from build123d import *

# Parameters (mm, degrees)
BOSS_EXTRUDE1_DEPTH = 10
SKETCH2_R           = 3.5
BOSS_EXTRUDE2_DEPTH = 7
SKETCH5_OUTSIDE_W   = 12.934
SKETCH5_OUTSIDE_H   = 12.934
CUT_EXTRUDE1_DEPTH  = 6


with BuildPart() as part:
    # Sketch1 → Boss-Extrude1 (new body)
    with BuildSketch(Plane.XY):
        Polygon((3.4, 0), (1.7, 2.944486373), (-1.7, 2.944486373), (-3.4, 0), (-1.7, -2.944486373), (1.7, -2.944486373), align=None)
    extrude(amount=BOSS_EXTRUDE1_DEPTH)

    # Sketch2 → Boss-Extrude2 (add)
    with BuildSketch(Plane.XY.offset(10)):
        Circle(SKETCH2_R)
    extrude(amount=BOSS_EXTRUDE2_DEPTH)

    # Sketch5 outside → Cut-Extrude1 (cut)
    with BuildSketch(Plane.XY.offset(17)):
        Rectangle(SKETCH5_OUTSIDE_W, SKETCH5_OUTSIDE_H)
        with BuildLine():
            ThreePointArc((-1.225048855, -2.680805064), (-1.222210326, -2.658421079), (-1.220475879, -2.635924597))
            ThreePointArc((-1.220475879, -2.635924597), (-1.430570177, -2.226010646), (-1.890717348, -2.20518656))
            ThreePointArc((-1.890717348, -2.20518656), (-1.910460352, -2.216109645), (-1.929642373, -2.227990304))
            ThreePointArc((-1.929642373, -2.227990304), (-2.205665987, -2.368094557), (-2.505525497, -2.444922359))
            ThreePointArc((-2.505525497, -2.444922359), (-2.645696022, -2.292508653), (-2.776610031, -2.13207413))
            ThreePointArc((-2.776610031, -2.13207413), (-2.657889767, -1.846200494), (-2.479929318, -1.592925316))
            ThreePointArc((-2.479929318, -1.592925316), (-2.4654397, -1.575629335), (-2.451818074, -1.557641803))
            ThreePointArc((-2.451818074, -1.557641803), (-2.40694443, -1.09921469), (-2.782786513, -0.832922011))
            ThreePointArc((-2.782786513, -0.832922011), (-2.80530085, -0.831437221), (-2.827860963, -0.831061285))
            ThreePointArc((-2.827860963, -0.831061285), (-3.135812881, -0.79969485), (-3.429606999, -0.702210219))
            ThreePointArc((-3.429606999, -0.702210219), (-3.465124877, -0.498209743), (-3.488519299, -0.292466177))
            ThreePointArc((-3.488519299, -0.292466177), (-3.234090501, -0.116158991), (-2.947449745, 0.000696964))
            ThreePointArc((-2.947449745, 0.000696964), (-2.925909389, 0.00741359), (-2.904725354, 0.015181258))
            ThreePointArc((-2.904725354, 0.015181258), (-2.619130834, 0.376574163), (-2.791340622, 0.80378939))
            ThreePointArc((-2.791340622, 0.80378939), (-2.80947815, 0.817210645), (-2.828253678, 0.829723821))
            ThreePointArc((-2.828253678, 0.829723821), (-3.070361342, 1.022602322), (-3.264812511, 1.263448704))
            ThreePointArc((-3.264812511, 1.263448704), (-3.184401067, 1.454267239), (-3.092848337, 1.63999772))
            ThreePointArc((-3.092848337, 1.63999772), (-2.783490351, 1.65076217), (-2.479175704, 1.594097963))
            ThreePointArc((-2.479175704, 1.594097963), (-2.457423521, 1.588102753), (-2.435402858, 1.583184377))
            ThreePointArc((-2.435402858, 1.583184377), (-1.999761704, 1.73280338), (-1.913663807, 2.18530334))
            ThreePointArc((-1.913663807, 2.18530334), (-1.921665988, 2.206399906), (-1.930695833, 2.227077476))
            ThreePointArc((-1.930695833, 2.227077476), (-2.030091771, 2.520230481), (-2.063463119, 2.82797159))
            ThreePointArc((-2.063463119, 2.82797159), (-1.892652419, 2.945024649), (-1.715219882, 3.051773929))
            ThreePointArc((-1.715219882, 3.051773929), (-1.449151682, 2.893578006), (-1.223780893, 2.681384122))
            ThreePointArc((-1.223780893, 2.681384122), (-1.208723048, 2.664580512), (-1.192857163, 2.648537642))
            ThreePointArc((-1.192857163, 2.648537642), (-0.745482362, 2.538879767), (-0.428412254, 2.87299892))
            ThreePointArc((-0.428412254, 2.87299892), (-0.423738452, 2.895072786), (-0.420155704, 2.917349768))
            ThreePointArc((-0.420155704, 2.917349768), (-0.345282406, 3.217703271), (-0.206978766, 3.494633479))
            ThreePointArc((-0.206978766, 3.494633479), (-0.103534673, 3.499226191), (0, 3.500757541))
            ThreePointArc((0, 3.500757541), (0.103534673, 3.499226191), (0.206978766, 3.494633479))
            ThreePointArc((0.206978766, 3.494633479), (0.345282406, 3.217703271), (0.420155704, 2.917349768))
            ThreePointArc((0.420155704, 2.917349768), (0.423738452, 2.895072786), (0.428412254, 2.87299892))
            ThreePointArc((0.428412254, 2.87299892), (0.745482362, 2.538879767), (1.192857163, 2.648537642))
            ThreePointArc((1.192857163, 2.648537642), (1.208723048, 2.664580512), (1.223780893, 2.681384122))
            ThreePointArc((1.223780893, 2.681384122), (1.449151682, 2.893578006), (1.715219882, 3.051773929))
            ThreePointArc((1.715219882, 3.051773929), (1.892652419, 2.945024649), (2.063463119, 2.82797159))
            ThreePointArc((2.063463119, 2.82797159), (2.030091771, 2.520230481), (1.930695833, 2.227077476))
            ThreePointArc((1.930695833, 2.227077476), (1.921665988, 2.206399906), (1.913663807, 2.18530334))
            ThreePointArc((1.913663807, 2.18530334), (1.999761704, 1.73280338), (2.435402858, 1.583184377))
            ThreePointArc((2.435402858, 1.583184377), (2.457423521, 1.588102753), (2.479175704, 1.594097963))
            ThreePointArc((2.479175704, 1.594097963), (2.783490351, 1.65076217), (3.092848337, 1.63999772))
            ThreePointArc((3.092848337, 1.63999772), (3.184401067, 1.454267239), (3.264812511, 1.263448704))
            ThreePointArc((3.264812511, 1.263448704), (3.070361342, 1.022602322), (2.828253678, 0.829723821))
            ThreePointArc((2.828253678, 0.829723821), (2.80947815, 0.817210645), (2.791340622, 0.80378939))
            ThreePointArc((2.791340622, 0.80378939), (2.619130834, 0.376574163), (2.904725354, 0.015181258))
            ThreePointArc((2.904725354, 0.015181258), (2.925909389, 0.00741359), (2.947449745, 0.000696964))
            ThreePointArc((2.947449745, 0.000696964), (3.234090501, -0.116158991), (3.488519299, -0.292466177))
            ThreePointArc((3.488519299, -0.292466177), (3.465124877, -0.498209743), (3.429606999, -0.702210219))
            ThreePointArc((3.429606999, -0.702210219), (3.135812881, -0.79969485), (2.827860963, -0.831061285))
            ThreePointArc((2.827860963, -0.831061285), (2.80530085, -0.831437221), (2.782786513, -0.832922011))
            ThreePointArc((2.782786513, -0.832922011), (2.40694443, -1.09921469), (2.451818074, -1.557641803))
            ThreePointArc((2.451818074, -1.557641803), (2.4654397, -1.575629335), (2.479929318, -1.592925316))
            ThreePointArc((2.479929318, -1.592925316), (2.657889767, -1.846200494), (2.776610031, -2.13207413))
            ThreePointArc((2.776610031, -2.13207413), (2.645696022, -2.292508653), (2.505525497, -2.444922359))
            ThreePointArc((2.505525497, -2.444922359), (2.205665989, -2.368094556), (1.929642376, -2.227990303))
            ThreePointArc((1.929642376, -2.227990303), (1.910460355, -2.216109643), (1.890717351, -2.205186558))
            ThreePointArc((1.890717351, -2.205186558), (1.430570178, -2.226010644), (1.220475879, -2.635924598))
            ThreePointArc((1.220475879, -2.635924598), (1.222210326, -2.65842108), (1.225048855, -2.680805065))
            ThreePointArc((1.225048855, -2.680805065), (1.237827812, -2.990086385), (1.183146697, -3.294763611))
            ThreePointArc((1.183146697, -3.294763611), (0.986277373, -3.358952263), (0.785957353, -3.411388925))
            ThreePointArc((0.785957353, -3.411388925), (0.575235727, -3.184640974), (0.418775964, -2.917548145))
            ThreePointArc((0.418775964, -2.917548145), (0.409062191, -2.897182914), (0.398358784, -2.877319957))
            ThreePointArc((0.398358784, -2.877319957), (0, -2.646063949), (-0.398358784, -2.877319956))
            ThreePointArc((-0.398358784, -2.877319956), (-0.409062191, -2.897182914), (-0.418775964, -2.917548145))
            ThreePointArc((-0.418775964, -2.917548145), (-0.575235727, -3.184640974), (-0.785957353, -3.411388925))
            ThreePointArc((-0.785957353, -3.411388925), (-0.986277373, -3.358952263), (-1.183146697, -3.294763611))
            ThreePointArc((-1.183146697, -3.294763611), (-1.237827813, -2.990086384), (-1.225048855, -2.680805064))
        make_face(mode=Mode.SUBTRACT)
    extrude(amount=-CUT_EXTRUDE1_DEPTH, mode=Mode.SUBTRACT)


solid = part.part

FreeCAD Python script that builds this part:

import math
import FreeCAD as App
import Part
import Sketcher
Q = App.Units.Quantity

doc = App.newDocument("Part")
body = doc.addObject("PartDesign::Body", "Body")

# Sketch on XY plane
sketch1 = body.newObject("Sketcher::SketchObject", "Sketch")
sketch1.AttachmentSupport = (doc.getObject("XY_Plane"), [""])
sketch1.MapMode = "FlatFace"
sketch1.addGeometry(Part.LineSegment(App.Vector(3.4, 0, 0), App.Vector(1.7, 2.9, 0)), False)
sketch1.addGeometry(Part.LineSegment(App.Vector(1.7, 2.9, 0), App.Vector(-1.7, 2.9, 0)), False)
sketch1.addGeometry(Part.LineSegment(App.Vector(-1.7, 2.9, 0), App.Vector(-3.4, 0, 0)), False)
sketch1.addGeometry(Part.LineSegment(App.Vector(-3.4, 0, 0), App.Vector(-1.7, -2.9, 0)), False)
sketch1.addGeometry(Part.LineSegment(App.Vector(-1.7, -2.9, 0), App.Vector(1.7, -2.9, 0)), False)
sketch1.addGeometry(Part.LineSegment(App.Vector(1.7, -2.9, 0), App.Vector(3.4, 0, 0)), False)
sketch1.addConstraint(Sketcher.Constraint("Coincident", 0, 2, 1, 1))
sketch1.addConstraint(Sketcher.Constraint("Coincident", 1, 2, 2, 1))
sketch1.addConstraint(Sketcher.Constraint("Coincident", 2, 2, 3, 1))
sketch1.addConstraint(Sketcher.Constraint("Coincident", 3, 2, 4, 1))
sketch1.addConstraint(Sketcher.Constraint("Coincident", 4, 2, 5, 1))
sketch1.addConstraint(Sketcher.Constraint("Coincident", 5, 2, 0, 1))
sketch1.addConstraint(Sketcher.Constraint("Horizontal", 1))
sketch1.addConstraint(Sketcher.Constraint("Horizontal", 4))
sketch1.addConstraint(Sketcher.Constraint("Symmetric", 0, 2, 3, 2, -1, 1))
sketch1.addConstraint(Sketcher.Constraint("Symmetric", 2, 2, 5, 2, -1, 1))
sketch1.addConstraint(Sketcher.Constraint("PointOnObject", 2, 2, -1))
sketch1.addConstraint(Sketcher.Constraint("Parallel", 2, 5))
sketch1.addConstraint(Sketcher.Constraint("Vertical", 1, 2, 3, 2))
sketch1.addConstraint(Sketcher.Constraint("Angle", 0, Q("120 deg")))
sketch1.addConstraint(Sketcher.Constraint("DistanceX", 1, 2, 1, 1, Q("3.4 mm")))
sketch1.addConstraint(Sketcher.Constraint("Distance", 0, Q("3.4 mm")))
pad1 = body.newObject("PartDesign::Pad", "Pad")
pad1.Profile = sketch1
pad1.Length = 10

# Sketch on XY plane
sketch2 = body.newObject("Sketcher::SketchObject", "Sketch001")
sketch2.AttachmentSupport = (doc.getObject("XY_Plane"), [""])
sketch2.MapMode = "FlatFace"
sketch2.AttachmentOffset = App.Placement(App.Vector(0, 0, 10), App.Rotation())
sketch2.addGeometry(Part.Circle(App.Vector(0, 0, 0), App.Vector(0, 0, 1), 3.5), False)
sketch2.addConstraint(Sketcher.Constraint("Coincident", 0, 3, -1, 1))
sketch2.addConstraint(Sketcher.Constraint("Diameter", 0, Q("7 mm")))
pad2 = body.newObject("PartDesign::Pad", "Pad001")
pad2.Profile = sketch2
pad2.Length = 7

# Sketch on XY plane
sketch3 = body.newObject("Sketcher::SketchObject", "Sketch002")
sketch3.AttachmentSupport = (doc.getObject("XY_Plane"), [""])
sketch3.MapMode = "FlatFace"
sketch3.AttachmentOffset = App.Placement(App.Vector(0, 0, 17), App.Rotation())
sketch3.addGeometry(Part.LineSegment(App.Vector(-6.467, 6.467, 0), App.Vector(-6.467, -6.467, 0)), False)
sketch3.addGeometry(Part.LineSegment(App.Vector(-6.467, -6.467, 0), App.Vector(6.467, -6.467, 0)), False)
sketch3.addGeometry(Part.LineSegment(App.Vector(6.467, -6.467, 0), App.Vector(6.467, 6.467, 0)), False)
sketch3.addGeometry(Part.LineSegment(App.Vector(6.467, 6.467, 0), App.Vector(-6.467, 6.467, 0)), False)
sketch3.addGeometry(Part.ArcOfCircle(Part.Circle(App.Vector(0.176, -2.894, 0), App.Vector(0, 0, 1), 1.417), math.radians(171), math.radians(196)), False)
sketch3.addGeometry(Part.ArcOfCircle(Part.Circle(App.Vector(-1.679, -2.612, 0), App.Vector(0, 0, 1), 0.459), math.radians(-8.64), math.radians(-3)), False)
sketch3.addGeometry(Part.ArcOfCircle(Part.Circle(App.Vector(-1.679, -2.612, 0), App.Vector(0, 0, 1), 0.459), math.radians(-3), math.radians(118)), False)
sketch3.addGeometry(Part.ArcOfCircle(Part.Circle(App.Vector(-1.679, -2.612, 0), App.Vector(0, 0, 1), 0.459), math.radians(117.54), math.radians(123.18)), False)
sketch3.addGeometry(Part.ArcOfCircle(Part.Circle(App.Vector(-2.705, -1.042, 0), App.Vector(0, 0, 1), 1.417), math.radians(-82), math.radians(-57)), False)
sketch3.addGeometry(Part.ArcOfCircle(Part.Circle(App.Vector(0, 0, 0), App.Vector(0, 0, 1), 3.501), math.radians(-142.48), math.radians(-135.7)), False)
sketch3.addGeometry(Part.ArcOfCircle(Part.Circle(App.Vector(-1.416, -2.529, 0), App.Vector(0, 0, 1), 1.417), math.radians(139), math.radians(164)), False)
sketch3.addGeometry(Part.ArcOfCircle(Part.Circle(App.Vector(-2.824, -1.29, 0), App.Vector(0, 0, 1), 0.459), math.radians(-41.36), math.radians(-35.73)), False)
sketch3.addGeometry(Part.ArcOfCircle(Part.Circle(App.Vector(-2.824, -1.29, 0), App.Vector(0, 0, 1), 0.459), math.radians(-36), math.radians(85)), False)
sketch3.addGeometry(Part.ArcOfCircle(Part.Circle(App.Vector(-2.824, -1.29, 0), App.Vector(0, 0, 1), 0.459), math.radians(84.82), math.radians(90.45)), False)
sketch3.addGeometry(Part.ArcOfCircle(Part.Circle(App.Vector(-2.839, 0.586, 0), App.Vector(0, 0, 1), 1.417), math.radians(-115), math.radians(-90)), False)
sketch3.addGeometry(Part.ArcOfCircle(Part.Circle(App.Vector(0, 0, 0), App.Vector(0, 0, 1), 3.501), math.radians(-175.21), math.radians(-168.43)), False)
sketch3.addGeometry(Part.ArcOfCircle(Part.Circle(App.Vector(-2.559, -1.362, 0), App.Vector(0, 0, 1), 1.417), math.radians(106), math.radians(131)), False)
sketch3.addGeometry(Part.ArcOfCircle(Part.Circle(App.Vector(-3.073, 0.442, 0), App.Vector(0, 0, 1), 0.459), math.radians(-74.09), math.radians(-68.45)), False)
sketch3.addGeometry(Part.ArcOfCircle(Part.Circle(App.Vector(-3.073, 0.442, 0), App.Vector(0, 0, 1), 0.459), math.radians(-68), math.radians(52)), False)
sketch3.addGeometry(Part.ArcOfCircle(Part.Circle(App.Vector(-3.073, 0.442, 0), App.Vector(0, 0, 1), 0.459), math.radians(52.09), math.radians(57.73)), False)
sketch3.addGeometry(Part.ArcOfCircle(Part.Circle(App.Vector(-2.072, 2.028, 0), App.Vector(0, 0, 1), 1.417), math.radians(-147), math.radians(-122)), False)
sketch3.addGeometry(Part.ArcOfCircle(Part.Circle(App.Vector(0, 0, 0), App.Vector(0, 0, 1), 3.501), math.radians(152.07), math.radians(158.84)), False)
sketch3.addGeometry(Part.ArcOfCircle(Part.Circle(App.Vector(-2.889, 0.238, 0), App.Vector(0, 0, 1), 1.417), math.radians(73), math.radians(98)), False)
sketch3.addGeometry(Part.ArcOfCircle(Part.Circle(App.Vector(-2.346, 2.033, 0), App.Vector(0, 0, 1), 0.459), math.radians(-106.82), math.radians(-101.18)), False)
sketch3.addGeometry(Part.ArcOfCircle(Part.Circle(App.Vector(-2.346, 2.033, 0), App.Vector(0, 0, 1), 0.459), math.radians(-101), math.radians(19)), False)
sketch3.addGeometry(Part.ArcOfCircle(Part.Circle(App.Vector(-2.346, 2.033, 0), App.Vector(0, 0, 1), 0.459), math.radians(19.36), math.radians(25)), False)
sketch3.addGeometry(Part.ArcOfCircle(Part.Circle(App.Vector(-0.646, 2.826, 0), App.Vector(0, 0, 1), 1.417), math.radians(180), math.radians(205)), False)
sketch3.addGeometry(Part.ArcOfCircle(Part.Circle(App.Vector(0, 0, 0), App.Vector(0, 0, 1), 3.501), math.radians(119.34), math.radians(126.12)), False)
sketch3.addGeometry(Part.ArcOfCircle(Part.Circle(App.Vector(-2.302, 1.762, 0), App.Vector(0, 0, 1), 1.417), math.radians(40), math.radians(66)), False)
sketch3.addGeometry(Part.ArcOfCircle(Part.Circle(App.Vector(-0.875, 2.979, 0), App.Vector(0, 0, 1), 0.459), math.radians(-139.55), math.radians(-133.91)), False)
sketch3.addGeometry(Part.ArcOfCircle(Part.Circle(App.Vector(-0.875, 2.979, 0), App.Vector(0, 0, 1), 0.459), math.radians(-134), math.radians(-13)), False)
sketch3.addGeometry(Part.ArcOfCircle(Part.Circle(App.Vector(-0.875, 2.979, 0), App.Vector(0, 0, 1), 0.459), math.radians(-13.36), math.radians(-7.73)), False)
sketch3.addGeometry(Part.ArcOfCircle(Part.Circle(App.Vector(0.984, 2.727, 0), App.Vector(0, 0, 1), 1.417), math.radians(147), math.radians(172)), False)
sketch3.addGeometry(Part.ArcOfCircle(Part.Circle(App.Vector(0, 0, 0), App.Vector(0, 0, 1), 3.501), math.radians(90), math.radians(93.39)), False)
sketch3.addGeometry(Part.ArcOfCircle(Part.Circle(App.Vector(0, 0, 0), App.Vector(0, 0, 1), 3.501), math.radians(86.61), math.radians(90)), False)
sketch3.addGeometry(Part.ArcOfCircle(Part.Circle(App.Vector(-0.984, 2.727, 0), App.Vector(0, 0, 1), 1.417), math.radians(8), math.radians(33)), False)
sketch3.addGeometry(Part.ArcOfCircle(Part.Circle(App.Vector(0.875, 2.979, 0), App.Vector(0, 0, 1), 0.459), math.radians(-172.27), math.radians(-166.64)), False)
sketch3.addGeometry(Part.ArcOfCircle(Part.Circle(App.Vector(0.875, 2.979, 0), App.Vector(0, 0, 1), 0.459), math.radians(-167), math.radians(-46)), False)
sketch3.addGeometry(Part.ArcOfCircle(Part.Circle(App.Vector(0.875, 2.979, 0), App.Vector(0, 0, 1), 0.459), math.radians(-46.09), math.radians(-40.45)), False)
sketch3.addGeometry(Part.ArcOfCircle(Part.Circle(App.Vector(2.302, 1.762, 0), App.Vector(0, 0, 1), 1.417), math.radians(114), math.radians(140)), False)
sketch3.addGeometry(Part.ArcOfCircle(Part.Circle(App.Vector(0, 0, 0), App.Vector(0, 0, 1), 3.501), math.radians(53.88), math.radians(60.66)), False)
sketch3.addGeometry(Part.ArcOfCircle(Part.Circle(App.Vector(0.646, 2.826, 0), App.Vector(0, 0, 1), 1.417), math.radians(-25), math.radians(0)), False)
sketch3.addGeometry(Part.ArcOfCircle(Part.Circle(App.Vector(2.346, 2.033, 0), App.Vector(0, 0, 1), 0.459), math.radians(155), math.radians(160.64)), False)
sketch3.addGeometry(Part.ArcOfCircle(Part.Circle(App.Vector(2.346, 2.033, 0), App.Vector(0, 0, 1), 0.459), math.radians(161), math.radians(281)), False)
sketch3.addGeometry(Part.ArcOfCircle(Part.Circle(App.Vector(2.346, 2.033, 0), App.Vector(0, 0, 1), 0.459), math.radians(-78.82), math.radians(-73.18)), False)
sketch3.addGeometry(Part.ArcOfCircle(Part.Circle(App.Vector(2.889, 0.238, 0), App.Vector(0, 0, 1), 1.417), math.radians(82), math.radians(107)), False)
sketch3.addGeometry(Part.ArcOfCircle(Part.Circle(App.Vector(0, 0, 0), App.Vector(0, 0, 1), 3.501), math.radians(21.16), math.radians(27.93)), False)
sketch3.addGeometry(Part.ArcOfCircle(Part.Circle(App.Vector(2.072, 2.028, 0), App.Vector(0, 0, 1), 1.417), math.radians(-58), math.radians(-33)), False)
sketch3.addGeometry(Part.ArcOfCircle(Part.Circle(App.Vector(3.073, 0.442, 0), App.Vector(0, 0, 1), 0.459), math.radians(122.27), math.radians(127.91)), False)
sketch3.addGeometry(Part.ArcOfCircle(Part.Circle(App.Vector(3.073, 0.442, 0), App.Vector(0, 0, 1), 0.459), math.radians(128), math.radians(248)), False)
sketch3.addGeometry(Part.ArcOfCircle(Part.Circle(App.Vector(3.073, 0.442, 0), App.Vector(0, 0, 1), 0.459), math.radians(-111.55), math.radians(-105.91)), False)
sketch3.addGeometry(Part.ArcOfCircle(Part.Circle(App.Vector(2.559, -1.362, 0), App.Vector(0, 0, 1), 1.417), math.radians(49), math.radians(74)), False)
sketch3.addGeometry(Part.ArcOfCircle(Part.Circle(App.Vector(0, 0, 0), App.Vector(0, 0, 1), 3.501), math.radians(-11.57), math.radians(-4.79)), False)
sketch3.addGeometry(Part.ArcOfCircle(Part.Circle(App.Vector(2.839, 0.586, 0), App.Vector(0, 0, 1), 1.417), math.radians(-90), math.radians(-65)), False)
sketch3.addGeometry(Part.ArcOfCircle(Part.Circle(App.Vector(2.824, -1.29, 0), App.Vector(0, 0, 1), 0.459), math.radians(89.55), math.radians(95.18)), False)
sketch3.addGeometry(Part.ArcOfCircle(Part.Circle(App.Vector(2.824, -1.29, 0), App.Vector(0, 0, 1), 0.459), math.radians(95), math.radians(216)), False)
sketch3.addGeometry(Part.ArcOfCircle(Part.Circle(App.Vector(2.824, -1.29, 0), App.Vector(0, 0, 1), 0.459), math.radians(-144.27), math.radians(-138.64)), False)
sketch3.addGeometry(Part.ArcOfCircle(Part.Circle(App.Vector(1.416, -2.529, 0), App.Vector(0, 0, 1), 1.417), math.radians(16), math.radians(41)), False)
sketch3.addGeometry(Part.ArcOfCircle(Part.Circle(App.Vector(0, 0, 0), App.Vector(0, 0, 1), 3.501), math.radians(-44.3), math.radians(-37.52)), False)
sketch3.addGeometry(Part.ArcOfCircle(Part.Circle(App.Vector(2.705, -1.042, 0), App.Vector(0, 0, 1), 1.417), math.radians(-123), math.radians(-98)), False)
sketch3.addGeometry(Part.ArcOfCircle(Part.Circle(App.Vector(1.679, -2.612, 0), App.Vector(0, 0, 1), 0.459), math.radians(56.82), math.radians(62.46)), False)
sketch3.addGeometry(Part.ArcOfCircle(Part.Circle(App.Vector(1.679, -2.612, 0), App.Vector(0, 0, 1), 0.459), math.radians(62), math.radians(183)), False)
sketch3.addGeometry(Part.ArcOfCircle(Part.Circle(App.Vector(1.679, -2.612, 0), App.Vector(0, 0, 1), 0.459), math.radians(-177), math.radians(-171.36)), False)
sketch3.addGeometry(Part.ArcOfCircle(Part.Circle(App.Vector(-0.176, -2.894, 0), App.Vector(0, 0, 1), 1.417), math.radians(-16), math.radians(9)), False)
sketch3.addGeometry(Part.ArcOfCircle(Part.Circle(App.Vector(0, 0, 0), App.Vector(0, 0, 1), 3.501), math.radians(-77.03), math.radians(-70.25)), False)
sketch3.addGeometry(Part.ArcOfCircle(Part.Circle(App.Vector(1.712, -2.339, 0), App.Vector(0, 0, 1), 1.417), math.radians(-156), math.radians(-131)), False)
sketch3.addGeometry(Part.ArcOfCircle(Part.Circle(App.Vector(0, -3.105, 0), App.Vector(0, 0, 1), 0.459), math.radians(24.09), math.radians(29.73)), False)
sketch3.addGeometry(Part.ArcOfCircle(Part.Circle(App.Vector(0, -3.105, 0), App.Vector(0, 0, 1), 0.459), math.radians(30), math.radians(150)), False)
sketch3.addGeometry(Part.ArcOfCircle(Part.Circle(App.Vector(0, -3.105, 0), App.Vector(0, 0, 1), 0.459), math.radians(150.27), math.radians(155.91)), False)
sketch3.addGeometry(Part.ArcOfCircle(Part.Circle(App.Vector(-1.712, -2.339, 0), App.Vector(0, 0, 1), 1.417), math.radians(-49), math.radians(-24)), False)
sketch3.addGeometry(Part.ArcOfCircle(Part.Circle(App.Vector(0, 0, 0), App.Vector(0, 0, 1), 3.501), math.radians(-109.75), math.radians(-102.97)), False)
sketch3.addConstraint(Sketcher.Constraint("Coincident", 0, 2, 1, 1))
sketch3.addConstraint(Sketcher.Constraint("Coincident", 1, 2, 2, 1))
sketch3.addConstraint(Sketcher.Constraint("Coincident", 2, 2, 3, 1))
sketch3.addConstraint(Sketcher.Constraint("Coincident", 3, 2, 0, 1))
sketch3.addConstraint(Sketcher.Constraint("Tangent", 4, 1, 5, 1))
sketch3.addConstraint(Sketcher.Constraint("Tangent", 5, 2, 6, 1))
sketch3.addConstraint(Sketcher.Constraint("Tangent", 6, 2, 7, 1))
sketch3.addConstraint(Sketcher.Constraint("Tangent", 7, 2, 8, 2))
sketch3.addConstraint(Sketcher.Constraint("Coincident", 8, 1, 9, 2))
sketch3.addConstraint(Sketcher.Constraint("Coincident", 9, 1, 10, 2))
sketch3.addConstraint(Sketcher.Constraint("Tangent", 10, 1, 11, 1))
sketch3.addConstraint(Sketcher.Constraint("Tangent", 11, 2, 12, 1))
sketch3.addConstraint(Sketcher.Constraint("Tangent", 12, 2, 13, 1))
sketch3.addConstraint(Sketcher.Constraint("Tangent", 13, 2, 14, 2))
sketch3.addConstraint(Sketcher.Constraint("Coincident", 14, 1, 15, 2))
sketch3.addConstraint(Sketcher.Constraint("Coincident", 15, 1, 16, 2))
sketch3.addConstraint(Sketcher.Constraint("Tangent", 16, 1, 17, 1))
sketch3.addConstraint(Sketcher.Constraint("Tangent", 17, 2, 18, 1))
sketch3.addConstraint(Sketcher.Constraint("Tangent", 18, 2, 19, 1))
sketch3.addConstraint(Sketcher.Constraint("Tangent", 19, 2, 20, 2))
sketch3.addConstraint(Sketcher.Constraint("Coincident", 20, 1, 21, 2))
sketch3.addConstraint(Sketcher.Constraint("Coincident", 21, 1, 22, 2))
sketch3.addConstraint(Sketcher.Constraint("Tangent", 22, 1, 23, 1))
sketch3.addConstraint(Sketcher.Constraint("Tangent", 23, 2, 24, 1))
sketch3.addConstraint(Sketcher.Constraint("Tangent", 24, 2, 25, 1))
sketch3.addConstraint(Sketcher.Constraint("Tangent", 25, 2, 26, 2))
sketch3.addConstraint(Sketcher.Constraint("Coincident", 26, 1, 27, 2))
sketch3.addConstraint(Sketcher.Constraint("Coincident", 27, 1, 28, 2))
sketch3.addConstraint(Sketcher.Constraint("Tangent", 28, 1, 29, 1))
sketch3.addConstraint(Sketcher.Constraint("Tangent", 29, 2, 30, 1))
sketch3.addConstraint(Sketcher.Constraint("Tangent", 30, 2, 31, 1))
sketch3.addConstraint(Sketcher.Constraint("Tangent", 31, 2, 32, 2))
sketch3.addConstraint(Sketcher.Constraint("Coincident", 32, 1, 33, 2))
sketch3.addConstraint(Sketcher.Constraint("Tangent", 33, 1, 34, 2))
sketch3.addConstraint(Sketcher.Constraint("Coincident", 34, 1, 35, 2))
sketch3.addConstraint(Sketcher.Constraint("Tangent", 35, 1, 36, 1))
sketch3.addConstraint(Sketcher.Constraint("Tangent", 36, 2, 37, 1))
sketch3.addConstraint(Sketcher.Constraint("Tangent", 37, 2, 38, 1))
sketch3.addConstraint(Sketcher.Constraint("Tangent", 38, 2, 39, 2))
sketch3.addConstraint(Sketcher.Constraint("Coincident", 39, 1, 40, 2))
sketch3.addConstraint(Sketcher.Constraint("Coincident", 40, 1, 41, 2))
sketch3.addConstraint(Sketcher.Constraint("Tangent", 41, 1, 42, 1))
sketch3.addConstraint(Sketcher.Constraint("Tangent", 42, 2, 43, 1))
sketch3.addConstraint(Sketcher.Constraint("Tangent", 43, 2, 44, 1))
sketch3.addConstraint(Sketcher.Constraint("Tangent", 44, 2, 45, 2))
sketch3.addConstraint(Sketcher.Constraint("Coincident", 45, 1, 46, 2))
sketch3.addConstraint(Sketcher.Constraint("Coincident", 46, 1, 47, 2))
sketch3.addConstraint(Sketcher.Constraint("Tangent", 47, 1, 48, 1))
sketch3.addConstraint(Sketcher.Constraint("Tangent", 48, 2, 49, 1))
sketch3.addConstraint(Sketcher.Constraint("Tangent", 49, 2, 50, 1))
sketch3.addConstraint(Sketcher.Constraint("Tangent", 50, 2, 51, 2))
sketch3.addConstraint(Sketcher.Constraint("Coincident", 51, 1, 52, 2))
sketch3.addConstraint(Sketcher.Constraint("Coincident", 52, 1, 53, 2))
sketch3.addConstraint(Sketcher.Constraint("Tangent", 53, 1, 54, 1))
sketch3.addConstraint(Sketcher.Constraint("Tangent", 54, 2, 55, 1))
sketch3.addConstraint(Sketcher.Constraint("Tangent", 55, 2, 56, 1))
sketch3.addConstraint(Sketcher.Constraint("Tangent", 56, 2, 57, 2))
sketch3.addConstraint(Sketcher.Constraint("Coincident", 57, 1, 58, 2))
sketch3.addConstraint(Sketcher.Constraint("Coincident", 58, 1, 59, 2))
sketch3.addConstraint(Sketcher.Constraint("Tangent", 59, 1, 60, 1))
sketch3.addConstraint(Sketcher.Constraint("Tangent", 60, 2, 61, 1))
sketch3.addConstraint(Sketcher.Constraint("Tangent", 61, 2, 62, 1))
sketch3.addConstraint(Sketcher.Constraint("Tangent", 62, 2, 63, 2))
sketch3.addConstraint(Sketcher.Constraint("Coincident", 63, 1, 64, 2))
sketch3.addConstraint(Sketcher.Constraint("Coincident", 64, 1, 65, 2))
sketch3.addConstraint(Sketcher.Constraint("Tangent", 65, 1, 66, 1))
sketch3.addConstraint(Sketcher.Constraint("Tangent", 66, 2, 67, 1))
sketch3.addConstraint(Sketcher.Constraint("Tangent", 67, 2, 68, 1))
sketch3.addConstraint(Sketcher.Constraint("Tangent", 68, 2, 69, 2))
sketch3.addConstraint(Sketcher.Constraint("Coincident", 69, 1, 70, 2))
sketch3.addConstraint(Sketcher.Constraint("Coincident", 70, 1, 4, 2))
sketch3.addConstraint(Sketcher.Constraint("Vertical", 0))
sketch3.addConstraint(Sketcher.Constraint("Horizontal", 1))
sketch3.addConstraint(Sketcher.Constraint("Vertical", 2))
sketch3.addConstraint(Sketcher.Constraint("Horizontal", 3))
sketch3.addConstraint(Sketcher.Constraint("Coincident", 9, 3, -1, 1))
sketch3.addConstraint(Sketcher.Constraint("Coincident", 15, 3, -1, 1))
sketch3.addConstraint(Sketcher.Constraint("Coincident", 21, 3, -1, 1))
sketch3.addConstraint(Sketcher.Constraint("Coincident", 27, 3, -1, 1))
sketch3.addConstraint(Sketcher.Constraint("Coincident", 33, 3, -1, 1))
sketch3.addConstraint(Sketcher.Constraint("Coincident", 40, 3, -1, 1))
sketch3.addConstraint(Sketcher.Constraint("Coincident", 46, 3, -1, 1))
sketch3.addConstraint(Sketcher.Constraint("Coincident", 52, 3, -1, 1))
sketch3.addConstraint(Sketcher.Constraint("Coincident", 58, 3, -1, 1))
sketch3.addConstraint(Sketcher.Constraint("Coincident", 64, 3, -1, 1))
sketch3.addConstraint(Sketcher.Constraint("Coincident", 70, 3, -1, 1))
sketch3.addConstraint(Sketcher.Constraint("Coincident", 7, 3, 5, 3))
sketch3.addConstraint(Sketcher.Constraint("Coincident", 13, 3, 11, 3))
sketch3.addConstraint(Sketcher.Constraint("Coincident", 19, 3, 17, 3))
sketch3.addConstraint(Sketcher.Constraint("Coincident", 25, 3, 23, 3))
sketch3.addConstraint(Sketcher.Constraint("Coincident", 31, 3, 29, 3))
sketch3.addConstraint(Sketcher.Constraint("Coincident", 38, 3, 36, 3))
sketch3.addConstraint(Sketcher.Constraint("Coincident", 44, 3, 42, 3))
sketch3.addConstraint(Sketcher.Constraint("Coincident", 50, 3, 48, 3))
sketch3.addConstraint(Sketcher.Constraint("Coincident", 56, 3, 54, 3))
sketch3.addConstraint(Sketcher.Constraint("Coincident", 62, 3, 60, 3))
sketch3.addConstraint(Sketcher.Constraint("Coincident", 68, 3, 66, 3))
sketch3.addConstraint(Sketcher.Constraint("Equal", 4, 8))
sketch3.addConstraint(Sketcher.Constraint("Equal", 8, 10))
sketch3.addConstraint(Sketcher.Constraint("Equal", 7, 11))
sketch3.addConstraint(Sketcher.Constraint("Equal", 10, 14))
sketch3.addConstraint(Sketcher.Constraint("Equal", 9, 15))
sketch3.addConstraint(Sketcher.Constraint("Equal", 14, 16))
sketch3.addConstraint(Sketcher.Constraint("Equal", 13, 17))
sketch3.addConstraint(Sketcher.Constraint("Equal", 16, 20))
sketch3.addConstraint(Sketcher.Constraint("Equal", 15, 21))
sketch3.addConstraint(Sketcher.Constraint("Equal", 20, 22))
sketch3.addConstraint(Sketcher.Constraint("Equal", 19, 23))
sketch3.addConstraint(Sketcher.Constraint("Equal", 22, 26))
sketch3.addConstraint(Sketcher.Constraint("Equal", 21, 27))
sketch3.addConstraint(Sketcher.Constraint("Equal", 26, 28))
sketch3.addConstraint(Sketcher.Constraint("Equal", 25, 29))
sketch3.addConstraint(Sketcher.Constraint("Equal", 28, 32))
sketch3.addConstraint(Sketcher.Constraint("Equal", 27, 33))
sketch3.addConstraint(Sketcher.Constraint("Equal", 33, 34))
sketch3.addConstraint(Sketcher.Constraint("Equal", 32, 35))
sketch3.addConstraint(Sketcher.Constraint("Equal", 31, 36))
sketch3.addConstraint(Sketcher.Constraint("Equal", 35, 39))
sketch3.addConstraint(Sketcher.Constraint("Equal", 34, 40))
sketch3.addConstraint(Sketcher.Constraint("Equal", 39, 41))
sketch3.addConstraint(Sketcher.Constraint("Equal", 38, 42))
sketch3.addConstraint(Sketcher.Constraint("Equal", 41, 45))
sketch3.addConstraint(Sketcher.Constraint("Equal", 40, 46))
sketch3.addConstraint(Sketcher.Constraint("Equal", 45, 47))
sketch3.addConstraint(Sketcher.Constraint("Equal", 44, 48))
sketch3.addConstraint(Sketcher.Constraint("Equal", 47, 51))
sketch3.addConstraint(Sketcher.Constraint("Equal", 46, 52))
sketch3.addConstraint(Sketcher.Constraint("Equal", 51, 53))
sketch3.addConstraint(Sketcher.Constraint("Equal", 50, 54))
sketch3.addConstraint(Sketcher.Constraint("Equal", 53, 57))
sketch3.addConstraint(Sketcher.Constraint("Equal", 52, 58))
sketch3.addConstraint(Sketcher.Constraint("Equal", 57, 59))
sketch3.addConstraint(Sketcher.Constraint("Equal", 56, 60))
sketch3.addConstraint(Sketcher.Constraint("Equal", 59, 63))
sketch3.addConstraint(Sketcher.Constraint("Equal", 58, 64))
sketch3.addConstraint(Sketcher.Constraint("Equal", 63, 65))
sketch3.addConstraint(Sketcher.Constraint("Equal", 62, 66))
sketch3.addConstraint(Sketcher.Constraint("Equal", 65, 69))
sketch3.addConstraint(Sketcher.Constraint("Equal", 64, 70))
sketch3.addConstraint(Sketcher.Constraint("Symmetric", 0, 2, 2, 2, -1, 1))
sketch3.addConstraint(Sketcher.Constraint("Symmetric", 32, 3, 35, 3, -2))
sketch3.addConstraint(Sketcher.Constraint("Symmetric", 28, 3, 39, 3, -2))
sketch3.addConstraint(Sketcher.Constraint("Symmetric", 26, 3, 41, 3, -2))
sketch3.addConstraint(Sketcher.Constraint("Symmetric", 22, 3, 45, 3, -2))
sketch3.addConstraint(Sketcher.Constraint("Symmetric", 20, 3, 47, 3, -2))
sketch3.addConstraint(Sketcher.Constraint("Symmetric", 16, 3, 51, 3, -2))
sketch3.addConstraint(Sketcher.Constraint("Symmetric", 14, 3, 53, 3, -2))
sketch3.addConstraint(Sketcher.Constraint("Symmetric", 10, 3, 57, 3, -2))
sketch3.addConstraint(Sketcher.Constraint("Symmetric", 8, 3, 59, 3, -2))
sketch3.addConstraint(Sketcher.Constraint("Symmetric", 4, 3, 63, 3, -2))
sketch3.addConstraint(Sketcher.Constraint("Symmetric", 65, 3, 69, 3, -2))
sketch3.addConstraint(Sketcher.Constraint("PointOnObject", 33, 1, -2))
sketch3.addConstraint(Sketcher.Constraint("Horizontal", 30, 2, 36, 2))
sketch3.addConstraint(Sketcher.Constraint("Horizontal", 29, 2, 37, 2))
sketch3.addConstraint(Sketcher.Constraint("Horizontal", 24, 2, 42, 2))
sketch3.addConstraint(Sketcher.Constraint("Horizontal", 23, 2, 43, 2))
sketch3.addConstraint(Sketcher.Constraint("Horizontal", 18, 2, 48, 2))
sketch3.addConstraint(Sketcher.Constraint("Horizontal", 17, 2, 49, 2))
sketch3.addConstraint(Sketcher.Constraint("Horizontal", 12, 2, 54, 2))
sketch3.addConstraint(Sketcher.Constraint("Horizontal", 11, 2, 55, 2))
sketch3.addConstraint(Sketcher.Constraint("Horizontal", 6, 2, 60, 2))
sketch3.addConstraint(Sketcher.Constraint("Horizontal", 5, 2, 61, 2))
sketch3.addConstraint(Sketcher.Constraint("Horizontal", 66, 2, 67, 2))
sketch3.addConstraint(Sketcher.Constraint("Equal", 3, 0))
sketch3.addConstraint(Sketcher.Constraint("DistanceX", 1, 1, 1, 2, Q("12.934 mm")))
sketch3.addConstraint(Sketcher.Constraint("Radius", 5, Q("0.458732 mm")))
sketch3.addConstraint(Sketcher.Constraint("DistanceY", -1, 1, 30, 2, Q("2.872999 mm")))
sketch3.addConstraint(Sketcher.Constraint("Radius", 4, Q("1.417073 mm")))
sketch3.addConstraint(Sketcher.Constraint("Radius", 9, Q("3.500757 mm")))
sketch3.addConstraint(Sketcher.Constraint("DistanceY", 16, 3, -1, 1, Q("1.362099 mm")))
sketch3.addConstraint(Sketcher.Constraint("DistanceX", 5, 3, -1, 1, Q("1.678579 mm")))
sketch3.addConstraint(Sketcher.Constraint("DistanceY", 5, 3, -1, 1, Q("2.611921 mm")))
sketch3.addConstraint(Sketcher.Constraint("DistanceX", 11, 3, -1, 1, Q("2.824222 mm")))
sketch3.addConstraint(Sketcher.Constraint("DistanceY", 11, 3, -1, 1, Q("1.289779 mm")))
sketch3.addConstraint(Sketcher.Constraint("DistanceY", -1, 1, 17, 3, Q("0.441858 mm")))
sketch3.addConstraint(Sketcher.Constraint("DistanceY", -1, 1, 20, 3, Q("2.027882 mm")))
sketch3.addConstraint(Sketcher.Constraint("DistanceX", 23, 3, -1, 1, Q("2.346448 mm")))
sketch3.addConstraint(Sketcher.Constraint("DistanceY", -1, 1, 23, 3, Q("2.033209 mm")))
sketch3.addConstraint(Sketcher.Constraint("DistanceX", 26, 3, -1, 1, Q("0.646391 mm")))
sketch3.addConstraint(Sketcher.Constraint("DistanceX", 28, 3, -1, 1, Q("2.302062 mm")))
sketch3.addConstraint(Sketcher.Constraint("DistanceY", -1, 1, 29, 3, Q("2.97903 mm")))
sketch3.addConstraint(Sketcher.Constraint("DistanceX", 31, 3, -1, 1, Q("0.874722 mm")))
sketch3.addConstraint(Sketcher.Constraint("DistanceX", -1, 1, 32, 3, Q("0.984049 mm")))
sketch3.addConstraint(Sketcher.Constraint("DistanceX", -1, 1, 65, 3, Q("1.712421 mm")))
sketch3.addConstraint(Sketcher.Constraint("DistanceY", 65, 3, -1, 1, Q("2.339119 mm")))
sketch3.addConstraint(Sketcher.Constraint("DistanceX", 4, 1, -1, 1, Q("1.225049 mm")))
sketch3.addConstraint(Sketcher.Constraint("DistanceY", 7, 2, -1, 1, Q("2.22799 mm")))
sketch3.addConstraint(Sketcher.Constraint("DistanceX", 9, 1, -1, 1, Q("2.77661 mm")))
sketch3.addConstraint(Sketcher.Constraint("DistanceX", 11, 2, -1, 1, Q("2.451818 mm")))
sketch3.addConstraint(Sketcher.Constraint("DistanceX", 13, 2, -1, 1, Q("2.827861 mm")))
sketch3.addConstraint(Sketcher.Constraint("DistanceX", 15, 1, -1, 1, Q("3.488519 mm")))
sketch3.addConstraint(Sketcher.Constraint("DistanceY", -1, 1, 17, 2, Q("0.015181 mm")))
sketch3.addConstraint(Sketcher.Constraint("DistanceX", 18, 2, -1, 1, Q("2.791341 mm")))
sketch3.addConstraint(Sketcher.Constraint("DistanceX", 21, 1, -1, 1, Q("3.092848 mm")))
sketch3.addConstraint(Sketcher.Constraint("DistanceX", -1, 1, 66, 2, Q("0.398359 mm")))
sketch3.addConstraint(Sketcher.Constraint("DistanceX", 5, 2, -1, 1, Q("1.220476 mm")))
sketch3.addConstraint(Sketcher.Constraint("DistanceX", 6, 2, -1, 1, Q("1.890717 mm")))
sketch3.addConstraint(Sketcher.Constraint("DistanceX", 12, 2, -1, 1, Q("2.782787 mm")))
sketch3.addConstraint(Sketcher.Constraint("DistanceX", 23, 2, -1, 1, Q("2.435403 mm")))
sketch3.addConstraint(Sketcher.Constraint("DistanceX", 24, 2, -1, 1, Q("1.913664 mm")))
sketch3.addConstraint(Sketcher.Constraint("DistanceX", 29, 2, -1, 1, Q("1.192857 mm")))
pocket1 = body.newObject("PartDesign::Pocket", "Pocket")
pocket1.Profile = sketch3
pocket1.Length = 6

doc.recompute()
